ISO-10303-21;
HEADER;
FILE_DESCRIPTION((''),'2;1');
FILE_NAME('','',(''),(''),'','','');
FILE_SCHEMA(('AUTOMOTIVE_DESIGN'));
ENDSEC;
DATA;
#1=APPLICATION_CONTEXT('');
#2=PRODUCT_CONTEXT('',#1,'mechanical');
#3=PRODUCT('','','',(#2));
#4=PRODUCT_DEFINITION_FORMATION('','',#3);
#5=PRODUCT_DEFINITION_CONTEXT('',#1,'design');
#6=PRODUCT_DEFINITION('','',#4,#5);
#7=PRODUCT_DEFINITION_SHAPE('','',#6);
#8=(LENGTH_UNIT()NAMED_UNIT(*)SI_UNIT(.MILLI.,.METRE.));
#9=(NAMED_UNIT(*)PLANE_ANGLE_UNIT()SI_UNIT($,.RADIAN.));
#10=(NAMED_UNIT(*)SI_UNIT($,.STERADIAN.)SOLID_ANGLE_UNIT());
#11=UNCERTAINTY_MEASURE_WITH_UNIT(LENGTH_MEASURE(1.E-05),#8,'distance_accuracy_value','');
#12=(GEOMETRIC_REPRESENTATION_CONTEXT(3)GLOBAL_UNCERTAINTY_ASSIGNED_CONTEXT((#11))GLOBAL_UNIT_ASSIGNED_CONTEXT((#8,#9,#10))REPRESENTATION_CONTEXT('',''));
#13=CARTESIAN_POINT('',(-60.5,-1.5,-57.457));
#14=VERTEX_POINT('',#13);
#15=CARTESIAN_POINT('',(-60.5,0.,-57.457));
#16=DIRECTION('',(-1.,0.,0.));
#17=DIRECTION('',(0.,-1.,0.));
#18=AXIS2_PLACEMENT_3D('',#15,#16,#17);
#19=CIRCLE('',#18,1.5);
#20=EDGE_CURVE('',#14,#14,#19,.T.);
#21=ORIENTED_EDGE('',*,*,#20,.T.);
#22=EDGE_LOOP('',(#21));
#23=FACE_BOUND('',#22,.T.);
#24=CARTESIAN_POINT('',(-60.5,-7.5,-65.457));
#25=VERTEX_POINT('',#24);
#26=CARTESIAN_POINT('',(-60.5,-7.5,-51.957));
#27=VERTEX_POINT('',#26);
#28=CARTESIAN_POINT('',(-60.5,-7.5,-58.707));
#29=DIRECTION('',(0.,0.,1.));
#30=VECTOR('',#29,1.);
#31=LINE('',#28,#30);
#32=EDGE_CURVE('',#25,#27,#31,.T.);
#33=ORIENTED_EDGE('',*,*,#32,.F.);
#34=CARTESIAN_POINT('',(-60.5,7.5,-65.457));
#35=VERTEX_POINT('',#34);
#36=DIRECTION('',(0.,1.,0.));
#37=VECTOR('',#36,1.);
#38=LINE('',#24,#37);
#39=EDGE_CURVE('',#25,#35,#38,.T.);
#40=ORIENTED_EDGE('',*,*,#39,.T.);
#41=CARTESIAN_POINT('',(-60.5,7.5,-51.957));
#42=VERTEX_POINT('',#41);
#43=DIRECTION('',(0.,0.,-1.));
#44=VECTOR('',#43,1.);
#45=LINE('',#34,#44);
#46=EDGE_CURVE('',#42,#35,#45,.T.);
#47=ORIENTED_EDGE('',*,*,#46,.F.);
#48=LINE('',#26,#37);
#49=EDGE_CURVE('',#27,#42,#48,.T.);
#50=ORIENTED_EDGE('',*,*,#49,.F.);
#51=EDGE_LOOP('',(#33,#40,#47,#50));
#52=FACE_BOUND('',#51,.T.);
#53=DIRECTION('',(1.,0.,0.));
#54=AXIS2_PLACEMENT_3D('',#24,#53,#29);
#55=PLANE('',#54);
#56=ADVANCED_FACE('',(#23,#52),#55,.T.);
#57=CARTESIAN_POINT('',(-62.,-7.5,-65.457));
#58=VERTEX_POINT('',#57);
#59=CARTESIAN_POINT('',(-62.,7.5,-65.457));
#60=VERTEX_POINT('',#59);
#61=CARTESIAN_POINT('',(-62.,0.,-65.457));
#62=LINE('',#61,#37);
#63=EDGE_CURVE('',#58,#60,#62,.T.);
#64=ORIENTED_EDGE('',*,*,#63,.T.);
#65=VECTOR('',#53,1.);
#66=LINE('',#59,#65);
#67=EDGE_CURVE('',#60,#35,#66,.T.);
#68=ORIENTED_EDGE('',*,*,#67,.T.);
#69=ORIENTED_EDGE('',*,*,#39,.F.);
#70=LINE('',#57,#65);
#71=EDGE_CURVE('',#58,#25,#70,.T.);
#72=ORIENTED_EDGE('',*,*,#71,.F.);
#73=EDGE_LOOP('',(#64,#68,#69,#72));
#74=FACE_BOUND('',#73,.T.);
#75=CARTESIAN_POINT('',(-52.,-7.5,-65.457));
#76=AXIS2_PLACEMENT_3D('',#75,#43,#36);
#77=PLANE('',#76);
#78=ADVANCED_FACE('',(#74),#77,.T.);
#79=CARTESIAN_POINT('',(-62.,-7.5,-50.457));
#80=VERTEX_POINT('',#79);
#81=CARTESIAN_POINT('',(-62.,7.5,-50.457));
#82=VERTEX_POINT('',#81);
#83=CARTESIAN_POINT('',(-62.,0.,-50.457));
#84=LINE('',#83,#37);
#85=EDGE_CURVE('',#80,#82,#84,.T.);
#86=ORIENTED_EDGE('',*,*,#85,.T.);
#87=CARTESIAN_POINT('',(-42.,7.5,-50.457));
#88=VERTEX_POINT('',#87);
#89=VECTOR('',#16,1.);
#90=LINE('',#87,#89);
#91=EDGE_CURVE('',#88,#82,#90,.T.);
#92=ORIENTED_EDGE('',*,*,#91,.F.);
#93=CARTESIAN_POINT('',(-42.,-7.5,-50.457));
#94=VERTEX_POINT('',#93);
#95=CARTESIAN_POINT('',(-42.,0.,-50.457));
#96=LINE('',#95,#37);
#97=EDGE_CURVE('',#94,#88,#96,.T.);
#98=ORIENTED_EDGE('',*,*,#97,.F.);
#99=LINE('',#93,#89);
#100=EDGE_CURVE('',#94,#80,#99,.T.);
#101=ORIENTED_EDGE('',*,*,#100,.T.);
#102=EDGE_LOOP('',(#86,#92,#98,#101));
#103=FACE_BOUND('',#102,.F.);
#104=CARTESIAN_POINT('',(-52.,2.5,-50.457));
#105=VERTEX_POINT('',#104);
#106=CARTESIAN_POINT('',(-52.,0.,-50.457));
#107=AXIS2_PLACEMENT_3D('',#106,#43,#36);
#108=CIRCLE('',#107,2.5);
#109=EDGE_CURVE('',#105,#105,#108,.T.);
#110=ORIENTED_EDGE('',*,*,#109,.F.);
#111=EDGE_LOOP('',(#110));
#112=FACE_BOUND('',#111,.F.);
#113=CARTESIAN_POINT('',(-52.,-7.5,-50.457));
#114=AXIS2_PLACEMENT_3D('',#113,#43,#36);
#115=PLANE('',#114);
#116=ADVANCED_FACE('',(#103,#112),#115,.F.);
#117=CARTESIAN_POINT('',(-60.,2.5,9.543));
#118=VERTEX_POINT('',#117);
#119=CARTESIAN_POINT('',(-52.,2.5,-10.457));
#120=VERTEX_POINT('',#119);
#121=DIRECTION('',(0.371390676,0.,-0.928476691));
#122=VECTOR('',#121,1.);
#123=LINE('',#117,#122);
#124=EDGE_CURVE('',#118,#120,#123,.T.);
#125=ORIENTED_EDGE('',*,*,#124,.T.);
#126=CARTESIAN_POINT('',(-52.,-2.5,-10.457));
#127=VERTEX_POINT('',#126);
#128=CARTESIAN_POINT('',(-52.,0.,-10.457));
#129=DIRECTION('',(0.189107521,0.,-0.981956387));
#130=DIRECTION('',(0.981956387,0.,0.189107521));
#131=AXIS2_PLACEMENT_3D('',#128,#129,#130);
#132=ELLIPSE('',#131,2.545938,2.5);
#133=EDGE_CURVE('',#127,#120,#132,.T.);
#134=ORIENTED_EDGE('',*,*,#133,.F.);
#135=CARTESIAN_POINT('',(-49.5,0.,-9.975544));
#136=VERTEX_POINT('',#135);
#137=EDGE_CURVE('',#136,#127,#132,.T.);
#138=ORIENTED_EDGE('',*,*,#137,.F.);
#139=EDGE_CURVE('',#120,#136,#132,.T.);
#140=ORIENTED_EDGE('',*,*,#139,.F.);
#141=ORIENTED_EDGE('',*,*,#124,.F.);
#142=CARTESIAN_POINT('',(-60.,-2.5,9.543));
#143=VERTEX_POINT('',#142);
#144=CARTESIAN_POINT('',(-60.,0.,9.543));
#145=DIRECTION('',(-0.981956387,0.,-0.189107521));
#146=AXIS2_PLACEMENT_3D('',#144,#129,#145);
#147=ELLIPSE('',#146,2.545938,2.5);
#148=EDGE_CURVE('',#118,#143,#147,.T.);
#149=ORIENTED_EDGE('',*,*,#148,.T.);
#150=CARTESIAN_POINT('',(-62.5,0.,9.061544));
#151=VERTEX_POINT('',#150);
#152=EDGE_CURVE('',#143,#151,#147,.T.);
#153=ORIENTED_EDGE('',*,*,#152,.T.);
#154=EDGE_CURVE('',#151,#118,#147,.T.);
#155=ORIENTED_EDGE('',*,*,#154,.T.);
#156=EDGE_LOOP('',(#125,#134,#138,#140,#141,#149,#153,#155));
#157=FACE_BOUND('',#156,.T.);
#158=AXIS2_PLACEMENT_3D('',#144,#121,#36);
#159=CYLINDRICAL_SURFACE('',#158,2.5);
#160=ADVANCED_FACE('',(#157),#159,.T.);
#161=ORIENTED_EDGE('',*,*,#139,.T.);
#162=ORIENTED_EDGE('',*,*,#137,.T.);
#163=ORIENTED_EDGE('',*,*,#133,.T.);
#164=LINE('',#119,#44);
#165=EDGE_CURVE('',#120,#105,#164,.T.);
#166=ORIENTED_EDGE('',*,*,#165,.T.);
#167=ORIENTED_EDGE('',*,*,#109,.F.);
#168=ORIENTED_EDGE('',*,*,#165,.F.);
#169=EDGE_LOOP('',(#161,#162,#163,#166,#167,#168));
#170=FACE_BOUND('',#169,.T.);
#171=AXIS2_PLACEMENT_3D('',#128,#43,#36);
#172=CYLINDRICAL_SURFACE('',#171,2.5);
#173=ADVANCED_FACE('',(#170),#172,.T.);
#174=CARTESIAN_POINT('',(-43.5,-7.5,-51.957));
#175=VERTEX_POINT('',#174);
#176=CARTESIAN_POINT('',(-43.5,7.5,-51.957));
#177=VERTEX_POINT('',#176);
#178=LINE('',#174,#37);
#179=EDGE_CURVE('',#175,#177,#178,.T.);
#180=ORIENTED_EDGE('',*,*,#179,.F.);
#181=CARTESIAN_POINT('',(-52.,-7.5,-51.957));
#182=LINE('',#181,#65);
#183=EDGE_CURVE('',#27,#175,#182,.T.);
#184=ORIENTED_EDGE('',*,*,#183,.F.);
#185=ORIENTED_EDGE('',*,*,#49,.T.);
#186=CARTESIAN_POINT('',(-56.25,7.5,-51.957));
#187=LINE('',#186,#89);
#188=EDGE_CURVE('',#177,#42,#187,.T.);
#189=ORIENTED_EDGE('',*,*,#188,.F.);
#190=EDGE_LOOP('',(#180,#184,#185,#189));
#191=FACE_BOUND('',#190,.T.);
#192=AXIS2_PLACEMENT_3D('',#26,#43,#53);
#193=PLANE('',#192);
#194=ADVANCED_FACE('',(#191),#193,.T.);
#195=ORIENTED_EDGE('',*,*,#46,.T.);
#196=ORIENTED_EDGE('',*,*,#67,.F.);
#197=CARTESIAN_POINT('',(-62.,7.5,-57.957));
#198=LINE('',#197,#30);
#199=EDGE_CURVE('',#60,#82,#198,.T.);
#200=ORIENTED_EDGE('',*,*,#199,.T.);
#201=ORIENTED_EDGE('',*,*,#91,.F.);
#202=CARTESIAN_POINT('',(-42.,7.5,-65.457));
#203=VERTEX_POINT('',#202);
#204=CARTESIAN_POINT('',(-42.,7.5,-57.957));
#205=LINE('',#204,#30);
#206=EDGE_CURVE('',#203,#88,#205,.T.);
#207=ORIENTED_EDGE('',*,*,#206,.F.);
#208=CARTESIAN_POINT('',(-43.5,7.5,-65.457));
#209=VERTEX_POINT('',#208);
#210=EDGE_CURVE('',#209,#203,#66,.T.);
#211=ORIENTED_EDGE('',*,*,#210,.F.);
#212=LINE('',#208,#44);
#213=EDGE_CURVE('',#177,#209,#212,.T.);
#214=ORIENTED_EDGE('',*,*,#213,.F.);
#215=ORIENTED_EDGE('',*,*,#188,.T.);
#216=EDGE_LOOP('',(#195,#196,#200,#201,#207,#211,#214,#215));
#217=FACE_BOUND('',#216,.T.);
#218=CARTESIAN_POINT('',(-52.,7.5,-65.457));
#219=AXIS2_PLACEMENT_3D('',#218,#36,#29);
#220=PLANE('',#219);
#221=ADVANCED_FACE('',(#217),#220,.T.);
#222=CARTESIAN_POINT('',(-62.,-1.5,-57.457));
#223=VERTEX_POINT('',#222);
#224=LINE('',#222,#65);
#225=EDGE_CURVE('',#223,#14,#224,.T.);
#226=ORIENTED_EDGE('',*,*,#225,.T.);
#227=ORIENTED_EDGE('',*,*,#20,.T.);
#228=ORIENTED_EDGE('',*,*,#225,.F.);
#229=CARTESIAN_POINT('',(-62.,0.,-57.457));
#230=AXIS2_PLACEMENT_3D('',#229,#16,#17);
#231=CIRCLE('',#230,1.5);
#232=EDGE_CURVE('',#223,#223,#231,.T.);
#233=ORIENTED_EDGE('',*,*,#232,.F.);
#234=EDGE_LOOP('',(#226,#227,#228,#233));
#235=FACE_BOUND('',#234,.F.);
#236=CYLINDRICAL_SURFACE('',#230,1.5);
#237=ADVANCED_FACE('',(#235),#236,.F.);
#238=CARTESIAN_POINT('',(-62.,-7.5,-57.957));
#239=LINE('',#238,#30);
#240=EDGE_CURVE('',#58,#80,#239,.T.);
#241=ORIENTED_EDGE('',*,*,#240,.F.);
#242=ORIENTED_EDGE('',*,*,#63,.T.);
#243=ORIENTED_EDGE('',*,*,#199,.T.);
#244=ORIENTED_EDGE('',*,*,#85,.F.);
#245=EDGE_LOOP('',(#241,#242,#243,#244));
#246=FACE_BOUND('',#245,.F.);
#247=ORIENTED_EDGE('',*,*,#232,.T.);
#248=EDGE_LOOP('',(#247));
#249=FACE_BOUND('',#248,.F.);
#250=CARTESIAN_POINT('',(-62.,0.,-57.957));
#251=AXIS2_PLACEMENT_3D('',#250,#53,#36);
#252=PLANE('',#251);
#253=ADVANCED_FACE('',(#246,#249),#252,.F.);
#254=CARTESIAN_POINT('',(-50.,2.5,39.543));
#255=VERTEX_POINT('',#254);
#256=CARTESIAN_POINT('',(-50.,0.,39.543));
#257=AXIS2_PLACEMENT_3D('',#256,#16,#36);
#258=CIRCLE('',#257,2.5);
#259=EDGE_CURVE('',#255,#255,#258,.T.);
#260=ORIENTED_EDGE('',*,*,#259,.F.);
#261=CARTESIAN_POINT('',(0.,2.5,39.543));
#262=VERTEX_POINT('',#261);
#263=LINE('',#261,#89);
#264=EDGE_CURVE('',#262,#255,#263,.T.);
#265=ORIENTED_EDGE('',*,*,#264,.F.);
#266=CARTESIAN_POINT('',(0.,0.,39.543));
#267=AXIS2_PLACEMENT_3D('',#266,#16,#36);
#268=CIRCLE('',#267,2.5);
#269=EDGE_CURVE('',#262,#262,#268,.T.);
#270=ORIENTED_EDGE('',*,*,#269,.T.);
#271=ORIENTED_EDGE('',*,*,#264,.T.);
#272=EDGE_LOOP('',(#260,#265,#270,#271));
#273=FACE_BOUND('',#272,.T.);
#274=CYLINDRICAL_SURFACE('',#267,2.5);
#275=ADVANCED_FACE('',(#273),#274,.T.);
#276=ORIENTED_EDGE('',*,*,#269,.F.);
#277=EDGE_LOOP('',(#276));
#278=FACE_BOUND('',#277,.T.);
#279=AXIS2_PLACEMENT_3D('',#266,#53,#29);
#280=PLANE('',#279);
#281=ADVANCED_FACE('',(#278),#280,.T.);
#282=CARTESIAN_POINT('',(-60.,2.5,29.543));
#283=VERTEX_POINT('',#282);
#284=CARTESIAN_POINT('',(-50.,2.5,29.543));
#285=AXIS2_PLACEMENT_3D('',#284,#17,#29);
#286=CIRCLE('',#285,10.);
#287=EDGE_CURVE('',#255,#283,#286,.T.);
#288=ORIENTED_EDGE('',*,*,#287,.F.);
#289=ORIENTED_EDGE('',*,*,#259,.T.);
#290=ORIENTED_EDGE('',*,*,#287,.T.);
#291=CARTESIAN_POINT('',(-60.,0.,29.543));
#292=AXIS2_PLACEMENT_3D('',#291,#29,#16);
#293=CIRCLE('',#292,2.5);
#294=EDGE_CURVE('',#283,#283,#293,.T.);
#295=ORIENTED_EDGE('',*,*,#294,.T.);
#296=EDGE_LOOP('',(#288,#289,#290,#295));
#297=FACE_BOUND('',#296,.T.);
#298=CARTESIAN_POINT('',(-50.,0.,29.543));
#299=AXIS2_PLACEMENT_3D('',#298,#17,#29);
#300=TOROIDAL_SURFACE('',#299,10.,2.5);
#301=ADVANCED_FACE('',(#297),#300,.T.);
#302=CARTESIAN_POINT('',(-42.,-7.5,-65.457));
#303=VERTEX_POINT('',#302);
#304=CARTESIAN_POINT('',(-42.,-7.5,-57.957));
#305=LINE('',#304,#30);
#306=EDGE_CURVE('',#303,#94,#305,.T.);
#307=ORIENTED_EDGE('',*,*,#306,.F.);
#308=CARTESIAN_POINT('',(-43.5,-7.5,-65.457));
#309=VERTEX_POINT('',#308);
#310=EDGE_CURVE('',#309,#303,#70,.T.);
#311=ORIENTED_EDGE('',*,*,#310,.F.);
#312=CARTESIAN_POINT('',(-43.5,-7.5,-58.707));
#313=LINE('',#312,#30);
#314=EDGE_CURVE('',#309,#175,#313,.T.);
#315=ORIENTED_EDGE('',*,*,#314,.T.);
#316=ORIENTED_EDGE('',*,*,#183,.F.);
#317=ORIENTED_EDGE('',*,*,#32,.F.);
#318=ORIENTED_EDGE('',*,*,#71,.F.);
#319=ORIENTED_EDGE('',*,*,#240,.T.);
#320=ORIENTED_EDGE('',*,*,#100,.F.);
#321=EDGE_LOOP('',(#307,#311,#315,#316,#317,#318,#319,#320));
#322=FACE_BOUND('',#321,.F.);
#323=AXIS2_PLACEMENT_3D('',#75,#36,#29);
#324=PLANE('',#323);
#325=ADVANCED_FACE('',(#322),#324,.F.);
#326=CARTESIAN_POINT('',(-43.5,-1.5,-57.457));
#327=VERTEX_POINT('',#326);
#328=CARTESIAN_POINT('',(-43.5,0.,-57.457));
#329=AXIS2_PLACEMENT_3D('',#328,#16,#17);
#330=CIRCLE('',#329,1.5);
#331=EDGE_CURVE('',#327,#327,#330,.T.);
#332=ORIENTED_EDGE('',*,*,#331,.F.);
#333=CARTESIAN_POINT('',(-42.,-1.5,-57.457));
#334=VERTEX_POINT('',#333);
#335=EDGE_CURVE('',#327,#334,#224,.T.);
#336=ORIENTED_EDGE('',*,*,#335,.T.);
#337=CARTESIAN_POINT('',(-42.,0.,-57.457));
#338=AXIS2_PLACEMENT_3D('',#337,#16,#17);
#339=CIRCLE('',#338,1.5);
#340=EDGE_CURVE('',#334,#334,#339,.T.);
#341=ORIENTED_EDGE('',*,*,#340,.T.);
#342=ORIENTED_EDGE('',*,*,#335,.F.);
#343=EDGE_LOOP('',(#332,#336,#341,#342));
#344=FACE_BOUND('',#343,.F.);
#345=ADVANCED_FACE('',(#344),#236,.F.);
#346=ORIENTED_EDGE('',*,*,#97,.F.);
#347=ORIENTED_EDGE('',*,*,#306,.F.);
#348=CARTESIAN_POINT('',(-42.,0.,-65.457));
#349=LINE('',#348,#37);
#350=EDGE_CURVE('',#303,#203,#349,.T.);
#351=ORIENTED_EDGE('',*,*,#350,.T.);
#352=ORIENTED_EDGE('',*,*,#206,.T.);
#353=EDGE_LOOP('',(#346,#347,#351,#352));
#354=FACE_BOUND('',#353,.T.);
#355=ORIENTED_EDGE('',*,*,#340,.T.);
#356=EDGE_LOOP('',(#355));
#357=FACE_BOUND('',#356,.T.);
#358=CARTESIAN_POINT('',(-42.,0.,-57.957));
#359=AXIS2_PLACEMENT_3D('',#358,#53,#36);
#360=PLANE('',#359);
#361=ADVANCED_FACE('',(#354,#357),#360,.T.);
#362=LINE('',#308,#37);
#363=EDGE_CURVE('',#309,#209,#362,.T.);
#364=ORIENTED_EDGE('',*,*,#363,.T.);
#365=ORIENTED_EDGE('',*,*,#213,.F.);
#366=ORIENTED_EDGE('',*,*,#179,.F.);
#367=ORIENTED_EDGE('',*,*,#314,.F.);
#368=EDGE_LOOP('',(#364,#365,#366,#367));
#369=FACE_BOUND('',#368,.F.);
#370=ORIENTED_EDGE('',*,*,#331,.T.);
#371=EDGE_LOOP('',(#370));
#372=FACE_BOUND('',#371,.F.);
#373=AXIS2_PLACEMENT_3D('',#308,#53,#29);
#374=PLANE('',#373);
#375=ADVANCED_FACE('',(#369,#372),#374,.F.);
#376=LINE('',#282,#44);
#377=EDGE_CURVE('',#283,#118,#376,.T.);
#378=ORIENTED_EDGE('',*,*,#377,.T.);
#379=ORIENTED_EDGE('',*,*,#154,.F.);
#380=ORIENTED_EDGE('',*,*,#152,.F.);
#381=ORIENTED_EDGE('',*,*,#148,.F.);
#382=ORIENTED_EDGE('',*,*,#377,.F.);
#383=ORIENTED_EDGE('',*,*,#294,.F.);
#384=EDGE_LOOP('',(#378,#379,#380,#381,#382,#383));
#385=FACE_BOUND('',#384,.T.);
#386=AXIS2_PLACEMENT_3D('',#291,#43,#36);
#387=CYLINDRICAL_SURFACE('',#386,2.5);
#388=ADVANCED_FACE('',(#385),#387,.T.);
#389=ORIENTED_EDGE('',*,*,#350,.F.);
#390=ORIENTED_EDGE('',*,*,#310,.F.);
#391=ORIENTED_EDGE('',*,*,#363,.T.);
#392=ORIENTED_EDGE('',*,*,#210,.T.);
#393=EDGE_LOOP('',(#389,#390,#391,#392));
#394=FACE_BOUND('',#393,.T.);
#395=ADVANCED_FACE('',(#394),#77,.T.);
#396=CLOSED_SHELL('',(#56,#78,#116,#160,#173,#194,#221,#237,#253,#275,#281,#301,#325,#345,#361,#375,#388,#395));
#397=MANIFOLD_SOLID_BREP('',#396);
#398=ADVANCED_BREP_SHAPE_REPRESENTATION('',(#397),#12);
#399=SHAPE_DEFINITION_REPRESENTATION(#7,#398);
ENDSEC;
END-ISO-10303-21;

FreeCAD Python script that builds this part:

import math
import FreeCAD as App
import Part
import Sketcher

V = App.Vector


def add_polygon(sketch, points):
    """Adds a closed chain of lines whose ends are joined by coincident constraints."""
    first, n = sketch.GeometryCount, len(points)
    for a, b in zip(points, points[1:] + points[:1]):
        sketch.addGeometry(Part.LineSegment(App.Vector(*a, 0), App.Vector(*b, 0)), False)
    for i in range(n):
        sketch.addConstraint(Sketcher.Constraint("Coincident", first + i, 2, first + (i + 1) % n, 1))

doc = App.newDocument("Part")
body = doc.addObject("PartDesign::Body", "Body")

# Sketch on YZ plane
sketch1 = doc.addObject("Sketcher::SketchObject", "Sketch")
body.addObject(sketch1)
sketch1.AttachmentSupport = (doc.YZ_Plane, [""])
sketch1.MapMode = "FlatFace"
sketch1.addGeometry(Part.Circle(V(0, 39.5, 0), V(0, 0, 1), 2.5), False)
sketch1.addConstraint([
    Sketcher.Constraint("PointOnObject", 0, 3, -2),
    Sketcher.Constraint("Diameter", 0, 5.0),
    Sketcher.Constraint("DistanceY", -1, 1, 0, 3, 39.543),
])

# Sketch on XZ plane
sketch2 = doc.addObject("Sketcher::SketchObject", "Sketch001")
body.addObject(sketch2)
sketch2.AttachmentSupport = (doc.XZ_Plane, [""])
sketch2.MapMode = "FlatFace"
sketch2.addGeometry([
    Part.LineSegment(V(0, 40, 0), V(-50, 40, 0)),  # 0
    Part.ArcOfCircle(Part.Circle(V(-50, 30, 0), V(0, 0, 1), 10), math.radians(90), math.radians(180)),  # 1
    Part.LineSegment(V(-60, 30, 0), V(-60, 10, 0)),  # 2
    Part.LineSegment(V(-60, 10, 0), V(-52, -10, 0)),  # 3
    Part.LineSegment(V(-52, -10, 0), V(-52, -50, 0)),  # 4
], False)
sketch2.addConstraint([
    Sketcher.Constraint("Tangent", 0, 2, 1, 1),
    Sketcher.Constraint("Tangent", 1, 2, 2, 1),
    Sketcher.Constraint("Coincident", 2, 2, 3, 1),
    Sketcher.Constraint("Coincident", 3, 2, 4, 1),
    Sketcher.Constraint("Horizontal", 0),
    Sketcher.Constraint("Vertical", 2),
    Sketcher.Constraint("Vertical", 4),
    Sketcher.Constraint("PointOnObject", 0, 1, -2),
    Sketcher.Constraint("Radius", 1, 10.0),
    Sketcher.Constraint("DistanceX", 0, 2, 0, 1, 50.0),
    Sketcher.Constraint("DistanceY", 2, 2, 2, 1, 20.0),
    Sketcher.Constraint("DistanceY", 4, 2, 4, 1, 40.0),
    Sketcher.Constraint("DistanceX", 3, 2, -1, 1, 52.0),
    Sketcher.Constraint("DistanceY", 3, 2, 2, 2, 20.0),
    Sketcher.Constraint("DistanceY", -1, 1, 1, 3, 29.543),
])
doc.recompute()

additivepipe = doc.addObject("PartDesign::AdditivePipe", "AdditivePipe")
body.addObject(additivepipe)
additivepipe.Profile = sketch1
additivepipe.Spine = (sketch2, ["Edge1", "Edge2", "Edge3", "Edge4", "Edge5"])
additivepipe.Transition = "Right corner"

# Sketch on YZ plane
sketch3 = doc.addObject("Sketcher::SketchObject", "Sketch002")
body.addObject(sketch3)
sketch3.AttachmentSupport = (doc.YZ_Plane, [""])
sketch3.MapMode = "FlatFace"
sketch3.AttachmentOffset = App.Placement(V(0, 0, -52), App.Rotation())
add_polygon(sketch3, [(-8, -50), (-8, -65), (8, -65), (8, -50)])  # lines 0-3
sketch3.addConstraint([
    Sketcher.Constraint("Vertical", 0),
    Sketcher.Constraint("Horizontal", 1),
    Sketcher.Constraint("Vertical", 2),
    Sketcher.Constraint("Horizontal", 3),
    Sketcher.Constraint("Equal", 3, 0),
    Sketcher.Constraint("DistanceX", 1, 1, 1, 2, 15.0),
    Sketcher.Constraint("DistanceX", 0, 2, -1, 1, 7.5),
    Sketcher.Constraint("DistanceY", 0, 2, -1, 1, 65.457),
])
pad1 = doc.addObject("PartDesign::Pad", "Pad")
body.addObject(pad1)
pad1.Profile = sketch3
pad1.Length = 20
pad1.Midplane = True

# Sketch on XZ plane
sketch4 = doc.addObject("Sketcher::SketchObject", "Sketch003")
body.addObject(sketch4)
sketch4.AttachmentSupport = (doc.XZ_Plane, [""])
sketch4.MapMode = "FlatFace"
sketch4.AttachmentOffset = App.Placement(V(0, 0, 7.5), App.Rotation())
add_polygon(sketch4, [(-60, -52), (-60, -65), (-44, -65), (-44, -52)])  # lines 0-3
sketch4.addConstraint([
    Sketcher.Constraint("Vertical", 0),
    Sketcher.Constraint("Horizontal", 1),
    Sketcher.Constraint("Vertical", 2),
    Sketcher.Constraint("Horizontal", 3),
    Sketcher.Constraint("DistanceX", 1, 1, 1, 2, 17.0),
    Sketcher.Constraint("DistanceY", 0, 2, 0, 1, 13.5),
    Sketcher.Constraint("DistanceX", 0, 2, -1, 1, 60.5),
    Sketcher.Constraint("DistanceY", 0, 2, -1, 1, 65.457),
])
pocket1 = doc.addObject("PartDesign::Pocket", "Pocket")
body.addObject(pocket1)
pocket1.Profile = sketch4
pocket1.Length = 25

# Sketch on YZ plane
sketch5 = doc.addObject("Sketcher::SketchObject", "Sketch004")
body.addObject(sketch5)
sketch5.AttachmentSupport = (doc.YZ_Plane, [""])
sketch5.MapMode = "FlatFace"
sketch5.AttachmentOffset = App.Placement(V(0, 0, -62), App.Rotation())
sketch5.addGeometry(Part.Circle(V(0, -57.5, 0), V(0, 0, 1), 1.5), False)
sketch5.addConstraint([
    Sketcher.Constraint("PointOnObject", 0, 3, -2),
    Sketcher.Constraint("Diameter", 0, 3.0),
    Sketcher.Constraint("DistanceY", 0, 3, -1, 1, 57.457),
])
pocket2 = doc.addObject("PartDesign::Pocket", "Pocket001")
body.addObject(pocket2)
pocket2.Profile = sketch5
pocket2.Length = 25
pocket2.Reversed = True

doc.recompute()
